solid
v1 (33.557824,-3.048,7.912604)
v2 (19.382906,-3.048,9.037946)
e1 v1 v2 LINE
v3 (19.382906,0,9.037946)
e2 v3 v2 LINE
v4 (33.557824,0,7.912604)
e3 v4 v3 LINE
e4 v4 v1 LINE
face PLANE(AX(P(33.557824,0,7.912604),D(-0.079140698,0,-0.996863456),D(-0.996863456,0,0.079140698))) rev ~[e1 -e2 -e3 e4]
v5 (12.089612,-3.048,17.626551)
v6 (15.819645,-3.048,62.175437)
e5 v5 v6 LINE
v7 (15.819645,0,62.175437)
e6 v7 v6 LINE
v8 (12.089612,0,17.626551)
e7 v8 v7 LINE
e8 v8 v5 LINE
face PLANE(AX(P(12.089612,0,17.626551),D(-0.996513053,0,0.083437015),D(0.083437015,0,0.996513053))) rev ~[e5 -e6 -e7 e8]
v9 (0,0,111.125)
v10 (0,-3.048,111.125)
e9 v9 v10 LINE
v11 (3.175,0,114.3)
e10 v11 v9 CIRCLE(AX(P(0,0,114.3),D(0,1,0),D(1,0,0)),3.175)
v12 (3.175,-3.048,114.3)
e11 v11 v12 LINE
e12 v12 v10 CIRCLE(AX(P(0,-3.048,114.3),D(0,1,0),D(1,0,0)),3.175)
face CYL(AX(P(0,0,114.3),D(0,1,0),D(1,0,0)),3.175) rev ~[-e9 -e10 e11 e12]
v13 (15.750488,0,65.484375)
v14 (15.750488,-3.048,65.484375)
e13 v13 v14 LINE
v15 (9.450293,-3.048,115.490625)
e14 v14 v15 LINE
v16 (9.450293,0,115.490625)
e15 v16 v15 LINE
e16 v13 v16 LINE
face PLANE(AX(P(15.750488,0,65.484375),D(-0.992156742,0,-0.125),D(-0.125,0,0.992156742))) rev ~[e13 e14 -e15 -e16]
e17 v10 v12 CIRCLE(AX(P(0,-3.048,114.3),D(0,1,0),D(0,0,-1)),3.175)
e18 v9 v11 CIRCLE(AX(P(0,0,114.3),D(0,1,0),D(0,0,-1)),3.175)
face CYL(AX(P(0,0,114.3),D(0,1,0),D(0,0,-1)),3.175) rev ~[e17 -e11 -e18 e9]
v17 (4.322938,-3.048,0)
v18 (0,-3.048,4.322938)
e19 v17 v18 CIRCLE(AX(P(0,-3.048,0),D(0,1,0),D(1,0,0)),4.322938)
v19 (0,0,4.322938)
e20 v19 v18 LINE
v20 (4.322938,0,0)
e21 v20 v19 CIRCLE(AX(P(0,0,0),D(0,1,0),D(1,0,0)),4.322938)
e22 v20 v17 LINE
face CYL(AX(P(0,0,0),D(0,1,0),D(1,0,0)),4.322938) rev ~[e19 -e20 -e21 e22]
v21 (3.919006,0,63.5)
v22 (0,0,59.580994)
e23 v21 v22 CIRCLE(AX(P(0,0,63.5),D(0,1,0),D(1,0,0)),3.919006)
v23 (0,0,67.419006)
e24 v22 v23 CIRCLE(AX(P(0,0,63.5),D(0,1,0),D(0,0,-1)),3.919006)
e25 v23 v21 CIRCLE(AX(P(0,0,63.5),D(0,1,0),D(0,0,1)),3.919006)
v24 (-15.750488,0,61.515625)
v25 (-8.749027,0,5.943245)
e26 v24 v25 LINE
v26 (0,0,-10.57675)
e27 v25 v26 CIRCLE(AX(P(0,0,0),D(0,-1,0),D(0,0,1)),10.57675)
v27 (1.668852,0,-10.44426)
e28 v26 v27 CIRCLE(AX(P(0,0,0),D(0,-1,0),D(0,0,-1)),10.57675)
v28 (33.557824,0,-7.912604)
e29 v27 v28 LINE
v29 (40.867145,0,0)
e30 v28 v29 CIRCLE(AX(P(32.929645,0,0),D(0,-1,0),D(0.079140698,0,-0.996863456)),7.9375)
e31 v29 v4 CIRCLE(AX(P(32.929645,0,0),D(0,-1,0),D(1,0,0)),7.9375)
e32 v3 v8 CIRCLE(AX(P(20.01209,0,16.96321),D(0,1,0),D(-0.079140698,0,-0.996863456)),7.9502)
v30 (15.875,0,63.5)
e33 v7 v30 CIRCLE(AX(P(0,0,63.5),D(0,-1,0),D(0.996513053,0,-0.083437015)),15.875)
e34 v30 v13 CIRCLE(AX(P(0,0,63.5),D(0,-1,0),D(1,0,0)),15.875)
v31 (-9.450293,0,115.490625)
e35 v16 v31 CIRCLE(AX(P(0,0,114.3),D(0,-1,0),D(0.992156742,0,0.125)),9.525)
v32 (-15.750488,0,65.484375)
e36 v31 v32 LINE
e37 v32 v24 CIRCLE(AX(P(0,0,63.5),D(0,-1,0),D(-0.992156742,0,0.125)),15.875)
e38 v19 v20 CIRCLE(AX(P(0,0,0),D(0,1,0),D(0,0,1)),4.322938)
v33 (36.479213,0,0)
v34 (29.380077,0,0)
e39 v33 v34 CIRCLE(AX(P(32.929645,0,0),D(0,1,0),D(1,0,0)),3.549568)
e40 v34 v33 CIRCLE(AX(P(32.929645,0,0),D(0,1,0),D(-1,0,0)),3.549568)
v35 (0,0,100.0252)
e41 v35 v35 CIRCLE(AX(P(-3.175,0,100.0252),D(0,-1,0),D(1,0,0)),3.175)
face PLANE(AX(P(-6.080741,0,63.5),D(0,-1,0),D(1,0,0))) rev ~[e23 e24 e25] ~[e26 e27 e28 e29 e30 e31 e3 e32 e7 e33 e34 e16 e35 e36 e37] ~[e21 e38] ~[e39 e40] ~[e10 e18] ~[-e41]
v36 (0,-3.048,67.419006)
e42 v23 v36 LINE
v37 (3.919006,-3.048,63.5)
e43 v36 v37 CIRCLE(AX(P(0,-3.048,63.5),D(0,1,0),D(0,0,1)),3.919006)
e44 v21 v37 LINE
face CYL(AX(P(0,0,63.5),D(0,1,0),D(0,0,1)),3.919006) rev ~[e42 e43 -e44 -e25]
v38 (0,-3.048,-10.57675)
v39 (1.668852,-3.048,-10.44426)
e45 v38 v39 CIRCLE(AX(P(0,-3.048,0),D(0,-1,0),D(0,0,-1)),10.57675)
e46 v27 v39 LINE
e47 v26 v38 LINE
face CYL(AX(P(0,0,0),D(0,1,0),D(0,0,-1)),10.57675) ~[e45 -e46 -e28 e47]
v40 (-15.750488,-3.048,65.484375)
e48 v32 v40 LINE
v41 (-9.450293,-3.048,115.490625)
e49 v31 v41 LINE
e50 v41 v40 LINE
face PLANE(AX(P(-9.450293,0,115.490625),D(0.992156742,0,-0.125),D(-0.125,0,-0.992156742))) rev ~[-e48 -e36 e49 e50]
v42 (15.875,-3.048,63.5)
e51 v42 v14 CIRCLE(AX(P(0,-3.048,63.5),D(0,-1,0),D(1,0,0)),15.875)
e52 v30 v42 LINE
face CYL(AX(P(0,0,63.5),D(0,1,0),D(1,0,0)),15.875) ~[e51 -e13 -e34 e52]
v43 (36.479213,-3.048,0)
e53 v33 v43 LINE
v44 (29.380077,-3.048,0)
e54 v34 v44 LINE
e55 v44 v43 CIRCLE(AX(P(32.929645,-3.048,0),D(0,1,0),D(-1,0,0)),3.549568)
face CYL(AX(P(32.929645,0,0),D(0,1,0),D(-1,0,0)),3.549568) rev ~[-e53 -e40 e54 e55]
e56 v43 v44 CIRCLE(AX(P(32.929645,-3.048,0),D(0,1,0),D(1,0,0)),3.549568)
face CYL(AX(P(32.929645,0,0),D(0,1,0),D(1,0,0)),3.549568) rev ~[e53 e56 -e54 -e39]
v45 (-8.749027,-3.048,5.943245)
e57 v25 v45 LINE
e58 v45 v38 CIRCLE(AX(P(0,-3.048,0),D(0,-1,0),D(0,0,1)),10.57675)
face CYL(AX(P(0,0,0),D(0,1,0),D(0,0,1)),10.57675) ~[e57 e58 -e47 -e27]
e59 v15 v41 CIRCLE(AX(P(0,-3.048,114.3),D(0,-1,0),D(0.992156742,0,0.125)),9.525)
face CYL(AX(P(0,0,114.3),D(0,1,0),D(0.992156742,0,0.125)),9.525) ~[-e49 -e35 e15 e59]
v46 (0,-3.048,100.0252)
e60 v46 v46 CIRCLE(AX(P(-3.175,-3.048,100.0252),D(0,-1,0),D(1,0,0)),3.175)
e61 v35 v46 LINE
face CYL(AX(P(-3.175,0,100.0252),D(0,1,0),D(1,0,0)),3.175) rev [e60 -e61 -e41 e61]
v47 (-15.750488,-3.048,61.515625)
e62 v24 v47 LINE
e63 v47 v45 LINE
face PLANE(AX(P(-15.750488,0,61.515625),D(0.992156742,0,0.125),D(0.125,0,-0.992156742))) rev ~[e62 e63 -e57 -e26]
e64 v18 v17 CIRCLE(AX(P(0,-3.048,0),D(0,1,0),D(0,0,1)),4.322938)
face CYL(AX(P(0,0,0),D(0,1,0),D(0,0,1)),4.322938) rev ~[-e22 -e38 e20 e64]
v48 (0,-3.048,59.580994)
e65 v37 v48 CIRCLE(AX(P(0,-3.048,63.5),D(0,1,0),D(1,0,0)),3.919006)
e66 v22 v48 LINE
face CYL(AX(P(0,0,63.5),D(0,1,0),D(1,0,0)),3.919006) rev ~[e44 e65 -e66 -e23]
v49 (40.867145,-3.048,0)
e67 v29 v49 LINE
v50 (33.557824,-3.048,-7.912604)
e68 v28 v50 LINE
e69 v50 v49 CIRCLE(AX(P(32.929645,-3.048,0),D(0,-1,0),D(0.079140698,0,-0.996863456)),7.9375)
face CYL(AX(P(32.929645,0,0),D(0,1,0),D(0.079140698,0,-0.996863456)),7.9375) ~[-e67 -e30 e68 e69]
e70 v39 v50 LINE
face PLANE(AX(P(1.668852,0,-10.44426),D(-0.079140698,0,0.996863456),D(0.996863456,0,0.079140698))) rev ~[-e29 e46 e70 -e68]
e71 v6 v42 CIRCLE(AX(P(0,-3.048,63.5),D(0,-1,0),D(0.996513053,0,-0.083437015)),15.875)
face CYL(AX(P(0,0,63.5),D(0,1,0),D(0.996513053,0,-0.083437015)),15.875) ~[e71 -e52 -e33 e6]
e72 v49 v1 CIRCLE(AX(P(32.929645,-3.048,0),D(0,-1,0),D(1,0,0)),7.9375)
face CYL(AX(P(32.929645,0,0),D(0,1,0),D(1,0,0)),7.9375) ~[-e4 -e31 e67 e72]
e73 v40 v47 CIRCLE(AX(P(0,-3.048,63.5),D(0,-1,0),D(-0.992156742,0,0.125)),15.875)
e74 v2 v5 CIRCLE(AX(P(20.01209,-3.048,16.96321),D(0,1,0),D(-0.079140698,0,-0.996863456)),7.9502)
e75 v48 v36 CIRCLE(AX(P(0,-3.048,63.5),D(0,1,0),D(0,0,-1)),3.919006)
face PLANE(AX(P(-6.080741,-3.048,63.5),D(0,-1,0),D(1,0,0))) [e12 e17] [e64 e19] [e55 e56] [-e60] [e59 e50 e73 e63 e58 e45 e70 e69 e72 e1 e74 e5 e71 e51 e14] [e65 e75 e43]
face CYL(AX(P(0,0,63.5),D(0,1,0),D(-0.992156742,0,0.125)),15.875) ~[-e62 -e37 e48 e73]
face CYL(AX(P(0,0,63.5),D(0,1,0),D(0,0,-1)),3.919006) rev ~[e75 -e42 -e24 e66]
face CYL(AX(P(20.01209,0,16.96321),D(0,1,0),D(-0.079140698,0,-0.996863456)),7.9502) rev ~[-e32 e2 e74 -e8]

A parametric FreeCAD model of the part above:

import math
import FreeCAD as App
import Part
import Sketcher
from FreeCAD import Vector
Q = App.Units.Quantity

doc = App.newDocument("Part")
params = doc.addObject("Spreadsheet::Sheet", "Params")
for row, (alias, value) in enumerate([
    ("sketch1_diameter", "0.25 in"),
    ("sketch1_radius", "0.625 in"),
    ("sketch1_radius2", "0.3125 in"),
    ("sketch1_radius3", "0.313 in"),
    ("sketch1_radius4", "0.375 in"),
    ("pad1_length", "0.12 in"),
], start=1):
    params.set(f"A{row}", alias)
    params.set(f"B{row}", "=" + value)
    params.setAlias(f"B{row}", alias)

body = doc.addObject("PartDesign::Body", "Body")

# Sketch on XZ plane
sketch1 = body.newObject("Sketcher::SketchObject", "Sketch")
sketch1.AttachmentSupport = (doc.getObject("XZ_Plane"), [""])
sketch1.MapMode = "FlatFace"
sketch1.addGeometry(Part.LineSegment(Vector(-9.5, 115.5, 0), Vector(-15.8, 65.5, 0)), False)
sketch1.addGeometry(Part.ArcOfCircle(Part.Circle(Vector(0, 63.5, 0), Vector(0, 0, 1), 15.9), math.radians(172.82), math.radians(187.18)), False)
sketch1.addGeometry(Part.LineSegment(Vector(-15.8, 61.5, 0), Vector(-8.7, 5.9, 0)), False)
sketch1.addGeometry(Part.ArcOfCircle(Part.Circle(Vector(0, 0, 0), Vector(0, 0, 1), 10.6), math.radians(146), math.radians(270)), False)
sketch1.addGeometry(Part.ArcOfCircle(Part.Circle(Vector(0, 0, 0), Vector(0, 0, 1), 10.6), math.radians(-90), math.radians(-80.92)), False)
sketch1.addGeometry(Part.LineSegment(Vector(1.7, -10.4, 0), Vector(33.6, -7.9, 0)), False)
sketch1.addGeometry(Part.ArcOfCircle(Part.Circle(Vector(32.9, 0, 0), Vector(0, 0, 1), 7.9), math.radians(-85), math.radians(0)), False)
sketch1.addGeometry(Part.ArcOfCircle(Part.Circle(Vector(32.9, 0, 0), Vector(0, 0, 1), 7.9), math.radians(0), math.radians(85)), False)
sketch1.addGeometry(Part.LineSegment(Vector(33.6, 7.9, 0), Vector(19.4, 9, 0)), False)
sketch1.addGeometry(Part.ArcOfCircle(Part.Circle(Vector(20, 17, 0), Vector(0, 0, 1), 8), math.radians(175), math.radians(265)), False)
sketch1.addGeometry(Part.LineSegment(Vector(12.1, 17.6, 0), Vector(15.8, 62.2, 0)), False)
sketch1.addGeometry(Part.ArcOfCircle(Part.Circle(Vector(0, 63.5, 0), Vector(0, 0, 1), 15.9), math.radians(-4.79), math.radians(0)), False)
sketch1.addGeometry(Part.ArcOfCircle(Part.Circle(Vector(0, 63.5, 0), Vector(0, 0, 1), 15.9), math.radians(0), math.radians(7.18)), False)
sketch1.addGeometry(Part.LineSegment(Vector(15.8, 65.5, 0), Vector(9.5, 115.5, 0)), False)
sketch1.addGeometry(Part.ArcOfCircle(Part.Circle(Vector(0, 114.3, 0), Vector(0, 0, 1), 9.5), math.radians(7), math.radians(173)), False)
sketch1.addGeometry(Part.ArcOfCircle(Part.Circle(Vector(0, 0, 0), Vector(0, 0, 1), 4.3), math.radians(0), math.radians(90)), False)
sketch1.addGeometry(Part.ArcOfCircle(Part.Circle(Vector(0, 0, 0), Vector(0, 0, 1), 4.3), math.radians(90), math.radians(360)), False)
sketch1.addGeometry(Part.ArcOfCircle(Part.Circle(Vector(32.9, 0, 0), Vector(0, 0, 1), 3.5), math.radians(0), math.radians(180)), False)
sketch1.addGeometry(Part.ArcOfCircle(Part.Circle(Vector(32.9, 0, 0), Vector(0, 0, 1), 3.5), math.radians(180), math.radians(360)), False)
sketch1.addGeometry(Part.ArcOfCircle(Part.Circle(Vector(0, 63.5, 0), Vector(0, 0, 1), 3.9), math.radians(90), math.radians(270)), False)
sketch1.addGeometry(Part.ArcOfCircle(Part.Circle(Vector(0, 63.5, 0), Vector(0, 0, 1), 3.9), math.radians(0), math.radians(90)), False)
sketch1.addGeometry(Part.ArcOfCircle(Part.Circle(Vector(0, 63.5, 0), Vector(0, 0, 1), 3.9), math.radians(-90), math.radians(0)), False)
sketch1.addGeometry(Part.Circle(Vector(-3.2, 100, 0), Vector(0, 0, 1), 3.2), False)
sketch1.addGeometry(Part.ArcOfCircle(Part.Circle(Vector(0, 114.3, 0), Vector(0, 0, 1), 3.2), math.radians(0), math.radians(270)), False)
sketch1.addGeometry(Part.ArcOfCircle(Part.Circle(Vector(0, 114.3, 0), Vector(0, 0, 1), 3.2), math.radians(-90), math.radians(0)), False)
sketch1.addConstraint(Sketcher.Constraint("Tangent", 0, 2, 1, 1))
sketch1.addConstraint(Sketcher.Constraint("Tangent", 1, 2, 2, 1))
sketch1.addConstraint(Sketcher.Constraint("Coincident", 2, 2, 3, 1))
sketch1.addConstraint(Sketcher.Constraint("Tangent", 3, 2, 4, 1))
sketch1.addConstraint(Sketcher.Constraint("Coincident", 4, 2, 5, 1))
sketch1.addConstraint(Sketcher.Constraint("Tangent", 5, 2, 6, 1))
sketch1.addConstraint(Sketcher.Constraint("Tangent", 6, 2, 7, 1))
sketch1.addConstraint(Sketcher.Constraint("Tangent", 7, 2, 8, 1))
sketch1.addConstraint(Sketcher.Constraint("Tangent", 8, 2, 9, 2))
sketch1.addConstraint(Sketcher.Constraint("Tangent", 9, 1, 10, 1))
sketch1.addConstraint(Sketcher.Constraint("Tangent", 10, 2, 11, 1))
sketch1.addConstraint(Sketcher.Constraint("Tangent", 11, 2, 12, 1))
sketch1.addConstraint(Sketcher.Constraint("Tangent", 12, 2, 13, 1))
sketch1.addConstraint(Sketcher.Constraint("Tangent", 13, 2, 14, 1))
sketch1.addConstraint(Sketcher.Constraint("Tangent", 14, 2, 0, 1))
sketch1.addConstraint(Sketcher.Constraint("Tangent", 15, 1, 16, 2))
sketch1.addConstraint(Sketcher.Constraint("Coincident", 16, 1, 15, 2))
sketch1.addConstraint(Sketcher.Constraint("Tangent", 17, 1, 18, 2))
sketch1.addConstraint(Sketcher.Constraint("Coincident", 18, 1, 17, 2))
sketch1.addConstraint(Sketcher.Constraint("Tangent", 19, 1, 20, 2))
sketch1.addConstraint(Sketcher.Constraint("Tangent", 20, 1, 21, 2))
sketch1.addConstraint(Sketcher.Constraint("Tangent", 21, 1, 19, 2))
sketch1.addConstraint(Sketcher.Constraint("Tangent", 23, 1, 24, 2))
sketch1.addConstraint(Sketcher.Constraint("Coincident", 24, 1, 23, 2))
sketch1.addConstraint(Sketcher.Constraint("Coincident", 3, 3, -1, 1))
sketch1.addConstraint(Sketcher.Constraint("Coincident", 15, 3, -1, 1))
sketch1.addConstraint(Sketcher.Constraint("Coincident", 11, 3, 1, 3))
sketch1.addConstraint(Sketcher.Constraint("Coincident", 17, 3, 6, 3))
sketch1.addConstraint(Sketcher.Constraint("Coincident", 19, 3, 1, 3))
sketch1.addConstraint(Sketcher.Constraint("Coincident", 23, 3, 14, 3))
sketch1.addConstraint(Sketcher.Constraint("Equal", 3, 4))
sketch1.addConstraint(Sketcher.Constraint("Equal", 6, 7))
sketch1.addConstraint(Sketcher.Constraint("Equal", 1, 11))
sketch1.addConstraint(Sketcher.Constraint("Equal", 11, 12))
sketch1.addConstraint(Sketcher.Constraint("Equal", 22, 23))
sketch1.addConstraint(Sketcher.Constraint("Symmetric", 0, 2, 12, 2, -2))
sketch1.addConstraint(Sketcher.Constraint("Symmetric", 5, 2, 7, 2, -1))
sketch1.addConstraint(Sketcher.Constraint("PointOnObject", 3, 2, -2))
sketch1.addConstraint(Sketcher.Constraint("PointOnObject", 6, 2, -1))
sketch1.addConstraint(Sketcher.Constraint("PointOnObject", 15, 1, -1))
sketch1.addConstraint(Sketcher.Constraint("PointOnObject", 16, 1, -2))
sketch1.addConstraint(Sketcher.Constraint("PointOnObject", 17, 1, -1))
sketch1.addConstraint(Sketcher.Constraint("PointOnObject", 18, 1, -1))
sketch1.addConstraint(Sketcher.Constraint("PointOnObject", 19, 1, -2))
sketch1.addConstraint(Sketcher.Constraint("PointOnObject", 21, 1, -2))
sketch1.addConstraint(Sketcher.Constraint("PointOnObject", 24, 1, -2))
sketch1.addConstraint(Sketcher.Constraint("Parallel", 2, 13))
sketch1.addConstraint(Sketcher.Constraint("Horizontal", 21, 3, 11, 2))
sketch1.addConstraint(Sketcher.Constraint("Horizontal", 11, 2, 20, 1))
sketch1.addConstraint(Sketcher.Constraint("Horizontal", 24, 3, 23, 1))
sketch1.addConstraint(Sketcher.Constraint("Diameter", 22, Q("0.25 in")))
sketch1.addConstraint(Sketcher.Constraint("Radius", 1, Q("0.625 in")))
sketch1.addConstraint(Sketcher.Constraint("Radius", 6, Q("0.3125 in")))
sketch1.addConstraint(Sketcher.Constraint("Radius", 9, Q("0.313 in")))
sketch1.addConstraint(Sketcher.Constraint("Radius", 14, Q("0.375 in")))
sketch1.addConstraint(Sketcher.Constraint("DistanceY", 11, 3, 14, 3, Q("2 in")))
sketch1.addConstraint(Sketcher.Constraint("DistanceY", -1, 1, 1, 3, Q("2.5 in")))
sketch1.addConstraint(Sketcher.Constraint("DistanceX", 22, 3, -1, 1, Q("0.125 in")))
sketch1.addConstraint(Sketcher.Constraint("DistanceY", -1, 1, 22, 3, Q("3.938 in")))
sketch1.addConstraint(Sketcher.Constraint("Radius", 3, Q("10.57675 mm")))
sketch1.addConstraint(Sketcher.Constraint("Radius", 17, Q("3.549568 mm")))
sketch1.addConstraint(Sketcher.Constraint("Radius", 15, Q("4.322938 mm")))
sketch1.addConstraint(Sketcher.Constraint("Radius", 19, Q("3.919006 mm")))
sketch1.addConstraint(Sketcher.Constraint("Distance", 5, Q("31.989308 mm")))
sketch1.addConstraint(Sketcher.Constraint("Distance", 8, Q("14.219519 mm")))
sketch1.addConstraint(Sketcher.Constraint("Distance", 10, Q("44.704769 mm")))
sketch1.setExpression("Constraints[50]", "Params.sketch1_diameter")
sketch1.setExpression("Constraints[51]", "Params.sketch1_radius")
sketch1.setExpression("Constraints[52]", "Params.sketch1_radius2")
sketch1.setExpression("Constraints[53]", "Params.sketch1_radius3")
sketch1.setExpression("Constraints[54]", "Params.sketch1_radius4")
pad1 = body.newObject("PartDesign::Pad", "Pad")
pad1.Profile = sketch1
pad1.setExpression("Length", "Params.pad1_length")

doc.recompute()
